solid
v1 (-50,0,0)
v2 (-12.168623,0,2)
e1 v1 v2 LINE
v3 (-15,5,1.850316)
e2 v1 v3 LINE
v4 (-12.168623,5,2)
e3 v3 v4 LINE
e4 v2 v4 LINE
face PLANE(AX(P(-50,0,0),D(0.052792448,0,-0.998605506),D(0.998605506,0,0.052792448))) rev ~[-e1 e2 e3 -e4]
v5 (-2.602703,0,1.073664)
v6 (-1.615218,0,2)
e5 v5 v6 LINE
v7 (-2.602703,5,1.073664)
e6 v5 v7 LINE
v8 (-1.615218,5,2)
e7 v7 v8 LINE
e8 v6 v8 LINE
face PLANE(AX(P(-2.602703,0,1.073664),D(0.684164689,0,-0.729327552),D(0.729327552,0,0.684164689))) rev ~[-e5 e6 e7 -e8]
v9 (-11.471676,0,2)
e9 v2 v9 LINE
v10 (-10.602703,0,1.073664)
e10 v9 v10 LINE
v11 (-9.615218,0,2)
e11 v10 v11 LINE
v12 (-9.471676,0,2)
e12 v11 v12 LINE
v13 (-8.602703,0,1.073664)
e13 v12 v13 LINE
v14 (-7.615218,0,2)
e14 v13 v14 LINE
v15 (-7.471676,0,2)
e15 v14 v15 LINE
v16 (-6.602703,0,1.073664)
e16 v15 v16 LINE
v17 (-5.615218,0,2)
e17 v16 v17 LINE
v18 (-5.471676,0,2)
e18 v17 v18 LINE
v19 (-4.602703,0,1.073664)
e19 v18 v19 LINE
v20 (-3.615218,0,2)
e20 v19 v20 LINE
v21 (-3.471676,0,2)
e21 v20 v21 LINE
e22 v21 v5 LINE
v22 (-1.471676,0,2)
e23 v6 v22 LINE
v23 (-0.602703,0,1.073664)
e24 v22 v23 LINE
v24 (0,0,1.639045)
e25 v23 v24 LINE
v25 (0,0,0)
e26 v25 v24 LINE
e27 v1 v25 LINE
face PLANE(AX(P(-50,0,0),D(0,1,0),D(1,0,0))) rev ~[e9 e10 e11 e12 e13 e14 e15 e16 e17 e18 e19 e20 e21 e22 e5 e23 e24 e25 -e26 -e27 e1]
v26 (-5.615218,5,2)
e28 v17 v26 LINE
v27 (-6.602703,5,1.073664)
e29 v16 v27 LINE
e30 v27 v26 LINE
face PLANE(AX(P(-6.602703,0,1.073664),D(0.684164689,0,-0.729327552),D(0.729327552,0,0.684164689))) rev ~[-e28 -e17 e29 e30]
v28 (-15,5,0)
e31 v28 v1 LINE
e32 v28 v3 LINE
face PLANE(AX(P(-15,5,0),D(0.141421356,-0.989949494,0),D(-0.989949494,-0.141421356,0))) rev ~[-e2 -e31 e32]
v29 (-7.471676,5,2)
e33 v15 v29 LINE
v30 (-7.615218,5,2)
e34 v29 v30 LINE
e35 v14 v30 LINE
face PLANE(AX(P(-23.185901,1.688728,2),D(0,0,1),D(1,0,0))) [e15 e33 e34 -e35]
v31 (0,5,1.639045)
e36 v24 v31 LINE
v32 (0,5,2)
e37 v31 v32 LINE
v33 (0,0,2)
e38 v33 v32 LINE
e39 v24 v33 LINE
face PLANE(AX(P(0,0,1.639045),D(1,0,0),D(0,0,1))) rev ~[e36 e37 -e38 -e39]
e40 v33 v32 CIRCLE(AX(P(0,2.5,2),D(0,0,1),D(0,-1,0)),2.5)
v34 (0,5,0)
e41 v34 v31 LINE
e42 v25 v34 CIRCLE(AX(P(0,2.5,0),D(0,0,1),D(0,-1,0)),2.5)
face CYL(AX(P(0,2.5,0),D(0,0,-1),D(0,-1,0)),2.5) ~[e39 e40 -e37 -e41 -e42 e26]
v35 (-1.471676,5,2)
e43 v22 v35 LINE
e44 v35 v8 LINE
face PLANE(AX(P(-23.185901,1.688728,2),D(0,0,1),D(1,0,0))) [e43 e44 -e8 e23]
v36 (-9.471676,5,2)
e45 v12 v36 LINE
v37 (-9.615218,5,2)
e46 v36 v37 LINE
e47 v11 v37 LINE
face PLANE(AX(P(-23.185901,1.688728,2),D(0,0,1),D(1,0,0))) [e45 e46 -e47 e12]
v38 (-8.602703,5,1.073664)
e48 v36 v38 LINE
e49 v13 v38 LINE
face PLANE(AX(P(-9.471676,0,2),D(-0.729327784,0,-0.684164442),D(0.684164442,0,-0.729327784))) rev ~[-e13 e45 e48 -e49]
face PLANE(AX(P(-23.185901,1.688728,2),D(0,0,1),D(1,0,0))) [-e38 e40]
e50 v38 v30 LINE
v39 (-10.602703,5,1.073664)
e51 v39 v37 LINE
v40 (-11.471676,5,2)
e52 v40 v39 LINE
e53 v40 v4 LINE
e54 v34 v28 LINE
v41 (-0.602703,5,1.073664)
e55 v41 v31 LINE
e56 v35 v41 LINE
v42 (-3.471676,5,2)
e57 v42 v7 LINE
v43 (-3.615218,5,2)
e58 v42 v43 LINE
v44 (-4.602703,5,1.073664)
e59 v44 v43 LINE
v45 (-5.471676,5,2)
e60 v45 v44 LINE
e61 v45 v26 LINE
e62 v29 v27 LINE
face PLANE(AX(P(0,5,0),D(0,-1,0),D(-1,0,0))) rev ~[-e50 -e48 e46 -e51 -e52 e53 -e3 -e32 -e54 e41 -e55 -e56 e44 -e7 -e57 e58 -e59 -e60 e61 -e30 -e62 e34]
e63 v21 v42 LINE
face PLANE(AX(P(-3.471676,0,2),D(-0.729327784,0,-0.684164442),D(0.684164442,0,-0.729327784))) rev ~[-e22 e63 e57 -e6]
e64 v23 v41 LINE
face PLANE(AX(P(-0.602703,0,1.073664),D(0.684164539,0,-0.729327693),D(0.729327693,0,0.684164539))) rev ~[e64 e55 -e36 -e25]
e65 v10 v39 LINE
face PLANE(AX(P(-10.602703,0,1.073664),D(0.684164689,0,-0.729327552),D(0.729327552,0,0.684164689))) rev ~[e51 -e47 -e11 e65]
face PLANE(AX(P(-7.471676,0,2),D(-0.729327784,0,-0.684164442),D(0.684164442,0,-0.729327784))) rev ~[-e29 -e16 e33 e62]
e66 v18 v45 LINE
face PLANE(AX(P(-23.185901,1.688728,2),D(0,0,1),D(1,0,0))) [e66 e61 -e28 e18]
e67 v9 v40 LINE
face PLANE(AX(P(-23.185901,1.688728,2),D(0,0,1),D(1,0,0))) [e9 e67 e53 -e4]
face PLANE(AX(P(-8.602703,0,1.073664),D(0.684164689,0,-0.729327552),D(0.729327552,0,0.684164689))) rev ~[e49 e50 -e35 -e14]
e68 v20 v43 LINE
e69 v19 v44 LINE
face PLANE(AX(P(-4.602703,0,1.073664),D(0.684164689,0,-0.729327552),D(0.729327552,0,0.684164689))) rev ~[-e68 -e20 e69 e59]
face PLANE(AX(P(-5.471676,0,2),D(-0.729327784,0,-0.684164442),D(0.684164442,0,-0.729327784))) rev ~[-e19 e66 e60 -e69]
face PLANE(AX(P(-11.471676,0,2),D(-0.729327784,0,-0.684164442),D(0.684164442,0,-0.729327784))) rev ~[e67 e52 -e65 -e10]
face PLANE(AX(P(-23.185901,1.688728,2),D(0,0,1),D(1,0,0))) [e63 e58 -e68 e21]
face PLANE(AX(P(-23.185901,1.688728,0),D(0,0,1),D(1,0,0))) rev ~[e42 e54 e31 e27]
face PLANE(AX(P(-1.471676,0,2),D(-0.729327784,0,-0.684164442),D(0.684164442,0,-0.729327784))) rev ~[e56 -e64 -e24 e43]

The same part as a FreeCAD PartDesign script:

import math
import FreeCAD as App
import Part
import Sketcher
Q = App.Units.Quantity


def add_polygon(sketch, points):
    """Adds a closed chain of lines whose ends are joined by coincident constraints."""
    first, n = sketch.GeometryCount, len(points)
    for a, b in zip(points, points[1:] + points[:1]):
        sketch.addGeometry(Part.LineSegment(App.Vector(*a, 0), App.Vector(*b, 0)), False)
    for i in range(n):
        sketch.addConstraint(Sketcher.Constraint("Coincident", first + i, 2, first + (i + 1) % n, 1))

doc = App.newDocument("Part")
params = doc.addObject("Spreadsheet::Sheet", "Params")
for row, (alias, value) in enumerate([
    ("sketch1_radius", "2.5 mm"),
    ("sketch1_width", "50 mm"),
    ("sketch1_width2", "15 mm"),
    ("pad1_length", "2 mm"),
    ("sketch2_height", "2 mm"),
    ("pocket1_length", "5 mm"),
    ("pocket2_length", "5 mm"),
], start=1):
    params.set(f"A{row}", alias)
    params.set(f"B{row}", "=" + value)
    params.setAlias(f"B{row}", alias)

body = doc.addObject("PartDesign::Body", "Body")

sketch1 = body.newObject("Sketcher::SketchObject", "Sketch")
sketch1.AttachmentSupport = (doc.getObject("XY_Plane"), [""])
sketch1.MapMode = "FlatFace"
sketch1.addGeometry([
    Part.LineSegment(App.Vector(-15, 5, 0), App.Vector(-50, 0, 0)),
    Part.LineSegment(App.Vector(-50, 0, 0), App.Vector(0, 0, 0)),
    Part.ArcOfCircle(Part.Circle(App.Vector(0, 2.5, 0), App.Vector(0, 0, 1), 2.5), math.radians(-90), math.radians(90)),
    Part.LineSegment(App.Vector(0, 5, 0), App.Vector(-15, 5, 0)),
], False)
sketch1.addConstraint([
    Sketcher.Constraint("Coincident", 0, 2, 1, 1),
    Sketcher.Constraint("Tangent", 1, 2, 2, 1),
    Sketcher.Constraint("Tangent", 2, 2, 3, 1),
    Sketcher.Constraint("Coincident", 3, 2, 0, 1),
    Sketcher.Constraint("Horizontal", 1),
    Sketcher.Constraint("Horizontal", 3),
    Sketcher.Constraint("Coincident", 1, 2, -1, 1),
    Sketcher.Constraint("Radius", 2, Q("2.5 mm")),
    Sketcher.Constraint("DistanceX", 1, 1, 1, 2, Q("50 mm")),
    Sketcher.Constraint("DistanceX", 3, 2, 3, 1, Q("15 mm")),
])
sketch1.setExpression("Constraints[7]", "Params.sketch1_radius")
sketch1.setExpression("Constraints[8]", "Params.sketch1_width")
sketch1.setExpression("Constraints[9]", "Params.sketch1_width2")
pad1 = body.newObject("PartDesign::Pad", "Pad")
pad1.Profile = sketch1
pad1.setExpression("Length", "Params.pad1_length")

sketch2 = body.newObject("Sketcher::SketchObject", "Sketch001")
sketch2.AttachmentSupport = (doc.getObject("XZ_Plane"), [""])
sketch2.MapMode = "FlatFace"
add_polygon(sketch2, [(-50, 2), (-50, 0), (-12.2, 2)])
sketch2.addConstraint([
    Sketcher.Constraint("Vertical", 0),
    Sketcher.Constraint("Horizontal", 2),
    Sketcher.Constraint("PointOnObject", 0, 2, -1),
    Sketcher.Constraint("DistanceY", 0, 2, 0, 1, Q("2 mm")),
    Sketcher.Constraint("DistanceX", 0, 2, -1, 1, Q("50 mm")),
    Sketcher.Constraint("DistanceX", 2, 2, 2, 1, Q("37.831377 mm")),
])
sketch2.setExpression("Constraints[6]", "Params.sketch2_height")
pocket1 = body.newObject("PartDesign::Pocket", "Pocket")
pocket1.Profile = sketch2
pocket1.setExpression("Length", "Params.pocket1_length")

sketch3 = body.newObject("Sketcher::SketchObject", "Sketch002")
sketch3.AttachmentSupport = (doc.getObject("XZ_Plane"), [""])
sketch3.MapMode = "FlatFace"
add_polygon(sketch3, [(-9.62, 2), (-11.47, 2), (-10.6, 1.07)])
add_polygon(sketch3, [(-7.62, 2), (-9.47, 2), (-8.6, 1.07)])
add_polygon(sketch3, [(-5.62, 2), (-7.47, 2), (-6.6, 1.07)])
add_polygon(sketch3, [(-3.62, 2), (-5.47, 2), (-4.6, 1.07)])
add_polygon(sketch3, [(-2.6, 1.07), (-1.62, 2), (-3.47, 2)])
add_polygon(sketch3, [(-0.6, 1.07), (0, 1.64), (0, 2), (-1.47, 2)])
sketch3.addConstraint([
    Sketcher.Constraint("Horizontal", 0),
    Sketcher.Constraint("Horizontal", 3),
    Sketcher.Constraint("Horizontal", 6),
    Sketcher.Constraint("Horizontal", 9),
    Sketcher.Constraint("Horizontal", 13),
    Sketcher.Constraint("Vertical", 16),
    Sketcher.Constraint("Horizontal", 17),
    Sketcher.Constraint("PointOnObject", 15, 2, -2),
    Sketcher.Constraint("Perpendicular", 1, 2),
    Sketcher.Constraint("Perpendicular", 2, 4),
    Sketcher.Constraint("Perpendicular", 4, 5),
    Sketcher.Constraint("Perpendicular", 5, 7),
    Sketcher.Constraint("Perpendicular", 7, 8),
    Sketcher.Constraint("Perpendicular", 8, 10),
    Sketcher.Constraint("Perpendicular", 10, 11),
    Sketcher.Constraint("Parallel", 11, 12),
    Sketcher.Constraint("Perpendicular", 12, 14),
    Sketcher.Constraint("Perpendicular", 14, 15),
    Sketcher.Constraint("Perpendicular", 15, 18),
    Sketcher.Constraint("Horizontal", 2, 2, 3, 2),
    Sketcher.Constraint("Horizontal", 1, 2, 4, 2),
    Sketcher.Constraint("Horizontal", 5, 2, 6, 2),
    Sketcher.Constraint("Horizontal", 4, 2, 7, 2),
    Sketcher.Constraint("Horizontal", 8, 2, 9, 2),
    Sketcher.Constraint("Horizontal", 7, 2, 10, 2),
    Sketcher.Constraint("Horizontal", 11, 2, 12, 2),
    Sketcher.Constraint("Horizontal", 10, 2, 14, 2),
    Sketcher.Constraint("Horizontal", 13, 2, 16, 2),
    Sketcher.Constraint("Horizontal", 14, 2, 18, 2),
    Sketcher.Constraint("DistanceY", -1, 1, 0, 2, Q("2 mm")),
    Sketcher.Constraint("DistanceX", 0, 2, 3, 2, Q("2 mm")),
    Sketcher.Constraint("DistanceX", 3, 2, 6, 2, Q("2 mm")),
    Sketcher.Constraint("DistanceX", 6, 2, 9, 2, Q("2 mm")),
    Sketcher.Constraint("DistanceX", 11, 2, 12, 2, Q("2 mm")),
    Sketcher.Constraint("DistanceX", 13, 2, 17, 2, Q("2 mm")),
    Sketcher.Constraint("DistanceX", 3, 2, 3, 1, Q("1.856458 mm")),
    Sketcher.Constraint("Distance", 15, Q("0.826382 mm")),
    Sketcher.Constraint("DistanceX", 17, 2, 17, 1, Q("1.471676 mm")),
])
pocket2 = body.newObject("PartDesign::Pocket", "Pocket001")
pocket2.Profile = sketch3
pocket2.setExpression("Length", "Params.pocket2_length")

doc.recompute()
